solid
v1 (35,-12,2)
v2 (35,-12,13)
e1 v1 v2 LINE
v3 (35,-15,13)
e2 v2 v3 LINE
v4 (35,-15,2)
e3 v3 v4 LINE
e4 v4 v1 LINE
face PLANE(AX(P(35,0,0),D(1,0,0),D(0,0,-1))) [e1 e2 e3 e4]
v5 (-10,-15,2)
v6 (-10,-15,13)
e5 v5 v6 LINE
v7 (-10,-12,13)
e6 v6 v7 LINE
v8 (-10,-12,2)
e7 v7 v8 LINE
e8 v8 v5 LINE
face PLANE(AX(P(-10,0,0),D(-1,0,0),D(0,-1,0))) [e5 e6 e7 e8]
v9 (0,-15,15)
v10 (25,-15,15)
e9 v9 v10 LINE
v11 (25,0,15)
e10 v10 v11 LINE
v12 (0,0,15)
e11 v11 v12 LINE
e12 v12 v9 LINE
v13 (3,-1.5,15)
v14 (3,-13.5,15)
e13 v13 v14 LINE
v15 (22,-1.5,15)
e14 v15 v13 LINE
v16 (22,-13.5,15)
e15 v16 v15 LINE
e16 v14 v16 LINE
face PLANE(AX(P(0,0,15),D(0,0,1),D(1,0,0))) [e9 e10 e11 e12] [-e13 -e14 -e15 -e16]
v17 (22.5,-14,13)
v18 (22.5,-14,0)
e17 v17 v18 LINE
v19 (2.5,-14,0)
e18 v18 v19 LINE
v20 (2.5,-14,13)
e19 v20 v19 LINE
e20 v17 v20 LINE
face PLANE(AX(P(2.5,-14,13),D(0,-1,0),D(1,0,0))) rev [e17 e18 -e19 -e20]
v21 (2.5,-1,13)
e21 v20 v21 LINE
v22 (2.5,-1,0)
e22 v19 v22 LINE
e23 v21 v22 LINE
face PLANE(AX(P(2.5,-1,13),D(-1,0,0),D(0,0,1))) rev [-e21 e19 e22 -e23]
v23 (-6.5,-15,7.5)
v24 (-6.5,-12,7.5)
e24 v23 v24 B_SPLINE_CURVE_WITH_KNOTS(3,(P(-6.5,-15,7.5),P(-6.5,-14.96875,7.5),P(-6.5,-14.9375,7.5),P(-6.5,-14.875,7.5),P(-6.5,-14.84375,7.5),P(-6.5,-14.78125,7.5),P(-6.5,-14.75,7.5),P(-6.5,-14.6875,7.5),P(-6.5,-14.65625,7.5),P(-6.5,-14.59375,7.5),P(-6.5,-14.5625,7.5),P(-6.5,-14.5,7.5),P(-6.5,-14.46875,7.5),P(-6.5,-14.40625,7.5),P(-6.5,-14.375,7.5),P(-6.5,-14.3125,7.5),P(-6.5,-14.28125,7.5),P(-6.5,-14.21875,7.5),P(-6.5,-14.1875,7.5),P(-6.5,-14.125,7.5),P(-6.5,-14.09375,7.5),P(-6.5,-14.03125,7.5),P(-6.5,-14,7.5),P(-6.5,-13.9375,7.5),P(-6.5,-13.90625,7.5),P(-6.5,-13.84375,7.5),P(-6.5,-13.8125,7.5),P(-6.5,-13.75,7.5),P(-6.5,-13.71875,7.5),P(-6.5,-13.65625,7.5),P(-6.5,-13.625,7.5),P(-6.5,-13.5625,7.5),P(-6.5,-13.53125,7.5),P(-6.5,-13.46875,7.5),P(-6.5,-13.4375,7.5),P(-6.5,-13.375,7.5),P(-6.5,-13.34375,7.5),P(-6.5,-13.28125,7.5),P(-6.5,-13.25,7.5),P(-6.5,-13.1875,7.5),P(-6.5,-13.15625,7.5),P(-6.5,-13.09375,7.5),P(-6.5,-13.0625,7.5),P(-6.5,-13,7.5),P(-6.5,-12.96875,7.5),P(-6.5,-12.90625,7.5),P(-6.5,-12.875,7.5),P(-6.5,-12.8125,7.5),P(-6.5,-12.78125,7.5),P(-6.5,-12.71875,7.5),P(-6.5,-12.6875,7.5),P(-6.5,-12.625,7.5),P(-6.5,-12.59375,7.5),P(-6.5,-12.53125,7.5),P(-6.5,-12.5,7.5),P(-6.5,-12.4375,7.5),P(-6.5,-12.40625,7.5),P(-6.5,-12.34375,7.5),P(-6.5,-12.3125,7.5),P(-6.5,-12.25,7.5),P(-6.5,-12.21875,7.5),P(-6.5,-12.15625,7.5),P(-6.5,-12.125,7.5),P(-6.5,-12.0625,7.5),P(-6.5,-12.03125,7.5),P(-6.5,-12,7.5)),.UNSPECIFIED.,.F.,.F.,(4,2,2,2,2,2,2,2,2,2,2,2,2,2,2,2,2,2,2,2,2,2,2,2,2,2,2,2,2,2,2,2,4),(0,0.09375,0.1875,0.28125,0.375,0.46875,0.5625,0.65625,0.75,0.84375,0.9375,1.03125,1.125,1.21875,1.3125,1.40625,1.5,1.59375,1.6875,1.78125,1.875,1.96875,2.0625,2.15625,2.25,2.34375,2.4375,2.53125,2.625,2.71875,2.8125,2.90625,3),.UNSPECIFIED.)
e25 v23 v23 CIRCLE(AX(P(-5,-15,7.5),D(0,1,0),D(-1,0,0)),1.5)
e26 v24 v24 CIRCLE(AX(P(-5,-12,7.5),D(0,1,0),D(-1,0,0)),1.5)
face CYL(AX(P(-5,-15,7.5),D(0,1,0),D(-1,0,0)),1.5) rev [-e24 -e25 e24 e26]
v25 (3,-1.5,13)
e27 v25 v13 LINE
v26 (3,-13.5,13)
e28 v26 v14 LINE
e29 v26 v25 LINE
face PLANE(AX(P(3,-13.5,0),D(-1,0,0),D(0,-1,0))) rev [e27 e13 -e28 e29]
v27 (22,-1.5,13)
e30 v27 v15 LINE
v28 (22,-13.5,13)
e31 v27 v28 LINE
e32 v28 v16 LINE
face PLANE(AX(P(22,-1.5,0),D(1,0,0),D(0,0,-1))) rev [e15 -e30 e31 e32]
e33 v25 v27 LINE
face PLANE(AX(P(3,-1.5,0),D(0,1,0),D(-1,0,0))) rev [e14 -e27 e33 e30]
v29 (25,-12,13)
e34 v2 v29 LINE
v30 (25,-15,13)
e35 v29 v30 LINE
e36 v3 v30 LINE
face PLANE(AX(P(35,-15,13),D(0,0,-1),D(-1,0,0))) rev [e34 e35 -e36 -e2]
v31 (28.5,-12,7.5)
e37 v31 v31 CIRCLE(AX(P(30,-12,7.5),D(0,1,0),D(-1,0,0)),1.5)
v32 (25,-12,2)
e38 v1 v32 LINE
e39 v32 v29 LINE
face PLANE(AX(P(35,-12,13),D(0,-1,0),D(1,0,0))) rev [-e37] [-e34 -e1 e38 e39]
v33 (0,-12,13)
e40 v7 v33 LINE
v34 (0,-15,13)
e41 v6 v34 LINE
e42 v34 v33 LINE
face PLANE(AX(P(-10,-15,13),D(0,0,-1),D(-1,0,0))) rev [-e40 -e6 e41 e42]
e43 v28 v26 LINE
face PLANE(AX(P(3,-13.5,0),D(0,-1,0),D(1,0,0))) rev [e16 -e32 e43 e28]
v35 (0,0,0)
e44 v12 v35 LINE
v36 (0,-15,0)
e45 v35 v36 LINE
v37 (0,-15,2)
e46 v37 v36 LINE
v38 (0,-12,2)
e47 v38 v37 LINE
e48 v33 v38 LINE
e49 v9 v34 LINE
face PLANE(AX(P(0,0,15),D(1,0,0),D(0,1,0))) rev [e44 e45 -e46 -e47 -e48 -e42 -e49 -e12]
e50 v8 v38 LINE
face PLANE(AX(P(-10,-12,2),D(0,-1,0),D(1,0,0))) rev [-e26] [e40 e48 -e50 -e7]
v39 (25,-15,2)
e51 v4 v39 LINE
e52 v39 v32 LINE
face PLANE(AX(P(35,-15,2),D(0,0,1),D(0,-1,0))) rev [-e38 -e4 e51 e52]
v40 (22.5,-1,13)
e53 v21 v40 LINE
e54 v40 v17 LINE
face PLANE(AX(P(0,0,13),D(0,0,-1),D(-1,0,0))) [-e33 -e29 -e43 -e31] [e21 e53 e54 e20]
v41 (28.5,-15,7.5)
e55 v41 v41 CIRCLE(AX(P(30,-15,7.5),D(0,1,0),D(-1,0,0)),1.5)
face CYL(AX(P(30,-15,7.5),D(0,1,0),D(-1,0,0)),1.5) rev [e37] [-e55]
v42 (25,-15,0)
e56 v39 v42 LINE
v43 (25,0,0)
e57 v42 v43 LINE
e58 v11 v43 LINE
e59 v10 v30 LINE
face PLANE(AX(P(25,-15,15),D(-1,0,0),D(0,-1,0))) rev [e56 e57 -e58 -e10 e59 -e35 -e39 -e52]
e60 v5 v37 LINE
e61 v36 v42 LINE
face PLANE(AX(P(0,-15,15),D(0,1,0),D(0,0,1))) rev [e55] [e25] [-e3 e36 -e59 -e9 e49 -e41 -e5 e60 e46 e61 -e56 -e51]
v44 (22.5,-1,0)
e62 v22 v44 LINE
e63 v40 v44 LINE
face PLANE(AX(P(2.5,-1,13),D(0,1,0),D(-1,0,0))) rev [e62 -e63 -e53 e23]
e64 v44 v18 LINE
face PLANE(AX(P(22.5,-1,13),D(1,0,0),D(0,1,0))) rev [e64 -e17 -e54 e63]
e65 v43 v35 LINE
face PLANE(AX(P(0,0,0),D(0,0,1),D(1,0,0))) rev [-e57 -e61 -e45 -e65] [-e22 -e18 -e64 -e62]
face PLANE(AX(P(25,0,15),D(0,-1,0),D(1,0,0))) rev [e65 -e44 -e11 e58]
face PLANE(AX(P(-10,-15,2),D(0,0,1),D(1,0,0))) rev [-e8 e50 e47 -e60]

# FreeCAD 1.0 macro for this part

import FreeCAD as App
import Part
import Sketcher

doc = App.newDocument("Part")
body = doc.addObject("PartDesign::Body", "Body")

sketch1 = body.newObject("Sketcher::SketchObject", "Sketch")
sketch1.AttachmentSupport = (doc.getObject("XY_Plane"), [""])
sketch1.MapMode = "FlatFace"
sketch1.addGeometry(Part.LineSegment(App.Vector(0, 0, 0), App.Vector(0, -15, 0)), False)
sketch1.addGeometry(Part.LineSegment(App.Vector(0, -15, 0), App.Vector(25, -15, 0)), False)
sketch1.addGeometry(Part.LineSegment(App.Vector(25, -15, 0), App.Vector(25, 0, 0)), False)
sketch1.addGeometry(Part.LineSegment(App.Vector(25, 0, 0), App.Vector(0, 0, 0)), False)
sketch1.addConstraint(Sketcher.Constraint("Coincident", 0, 2, 1, 1))
sketch1.addConstraint(Sketcher.Constraint("Coincident", 1, 2, 2, 1))
sketch1.addConstraint(Sketcher.Constraint("Coincident", 2, 2, 3, 1))
sketch1.addConstraint(Sketcher.Constraint("Coincident", 3, 2, 0, 1))
sketch1.addConstraint(Sketcher.Constraint("Vertical", 0))
sketch1.addConstraint(Sketcher.Constraint("Horizontal", 1))
sketch1.addConstraint(Sketcher.Constraint("Vertical", 2))
sketch1.addConstraint(Sketcher.Constraint("Horizontal", 3))
sketch1.addConstraint(Sketcher.Constraint("Coincident", 3, 2, -1, 1))
sketch1.addConstraint(Sketcher.Constraint("DistanceX", 1, 1, 1, 2, 25.0))
sketch1.addConstraint(Sketcher.Constraint("DistanceY", 0, 2, 0, 1, 15.0))
pad1 = body.newObject("PartDesign::Pad", "Pad")
pad1.Profile = sketch1
pad1.Length = 15

sketch2 = body.newObject("Sketcher::SketchObject", "Sketch001")
sketch2.AttachmentSupport = (doc.getObject("XY_Plane"), [""])
sketch2.MapMode = "FlatFace"
sketch2.addGeometry(Part.LineSegment(App.Vector(22, -1, 0), App.Vector(22, -14, 0)), False)
sketch2.addGeometry(Part.LineSegment(App.Vector(22, -14, 0), App.Vector(2, -14, 0)), False)
sketch2.addGeometry(Part.LineSegment(App.Vector(2, -14, 0), App.Vector(2, -1, 0)), False)
sketch2.addGeometry(Part.LineSegment(App.Vector(2, -1, 0), App.Vector(22, -1, 0)), False)
sketch2.addConstraint(Sketcher.Constraint("Coincident", 0, 2, 1, 1))
sketch2.addConstraint(Sketcher.Constraint("Coincident", 1, 2, 2, 1))
sketch2.addConstraint(Sketcher.Constraint("Coincident", 2, 2, 3, 1))
sketch2.addConstraint(Sketcher.Constraint("Coincident", 3, 2, 0, 1))
sketch2.addConstraint(Sketcher.Constraint("Vertical", 0))
sketch2.addConstraint(Sketcher.Constraint("Horizontal", 1))
sketch2.addConstraint(Sketcher.Constraint("Vertical", 2))
sketch2.addConstraint(Sketcher.Constraint("Horizontal", 3))
sketch2.addConstraint(Sketcher.Constraint("DistanceX", 1, 2, 1, 1, 20.0))
sketch2.addConstraint(Sketcher.Constraint("DistanceY", 0, 2, 0, 1, 13.0))
sketch2.addConstraint(Sketcher.Constraint("DistanceY", 0, 2, -1, 1, 14.0))
sketch2.addConstraint(Sketcher.Constraint("DistanceX", -1, 1, 0, 2, 22.5))
pocket1 = body.newObject("PartDesign::Pocket", "Pocket")
pocket1.Profile = sketch2
pocket1.Length = 13
pocket1.Reversed = True

sketch3 = body.newObject("Sketcher::SketchObject", "Sketch002")
sketch3.AttachmentSupport = (doc.getObject("XY_Plane"), [""])
sketch3.MapMode = "FlatFace"
sketch3.AttachmentOffset = App.Placement(App.Vector(0, 0, 15), App.Rotation())
sketch3.addGeometry(Part.LineSegment(App.Vector(3, -2, 0), App.Vector(3, -14, 0)), False)
sketch3.addGeometry(Part.LineSegment(App.Vector(3, -14, 0), App.Vector(22, -14, 0)), False)
sketch3.addGeometry(Part.LineSegment(App.Vector(22, -14, 0), App.Vector(22, -2, 0)), False)
sketch3.addGeometry(Part.LineSegment(App.Vector(22, -2, 0), App.Vector(3, -2, 0)), False)
sketch3.addConstraint(Sketcher.Constraint("Coincident", 0, 2, 1, 1))
sketch3.addConstraint(Sketcher.Constraint("Coincident", 1, 2, 2, 1))
sketch3.addConstraint(Sketcher.Constraint("Coincident", 2, 2, 3, 1))
sketch3.addConstraint(Sketcher.Constraint("Coincident", 3, 2, 0, 1))
sketch3.addConstraint(Sketcher.Constraint("Vertical", 0))
sketch3.addConstraint(Sketcher.Constraint("Horizontal", 1))
sketch3.addConstraint(Sketcher.Constraint("Vertical", 2))
sketch3.addConstraint(Sketcher.Constraint("Horizontal", 3))
sketch3.addConstraint(Sketcher.Constraint("DistanceX", 1, 1, 1, 2, 19.0))
sketch3.addConstraint(Sketcher.Constraint("DistanceY", 0, 2, 0, 1, 12.0))
sketch3.addConstraint(Sketcher.Constraint("DistanceX", -1, 1, 0, 2, 3.0))
sketch3.addConstraint(Sketcher.Constraint("DistanceY", 0, 2, -1, 1, 13.5))
pocket2 = body.newObject("PartDesign::Pocket", "Pocket001")
pocket2.Profile = sketch3
pocket2.Type = "ThroughAll"

sketch4 = body.newObject("Sketcher::SketchObject", "Sketch003")
sketch4.AttachmentSupport = (doc.getObject("YZ_Plane"), [""])
sketch4.MapMode = "FlatFace"
sketch4.addGeometry(Part.LineSegment(App.Vector(-12, 2, 0), App.Vector(-15, 2, 0)), False)
sketch4.addGeometry(Part.LineSegment(App.Vector(-15, 2, 0), App.Vector(-15, 13, 0)), False)
sketch4.addGeometry(Part.LineSegment(App.Vector(-15, 13, 0), App.Vector(-12, 13, 0)), False)
sketch4.addGeometry(Part.LineSegment(App.Vector(-12, 13, 0), App.Vector(-12, 2, 0)), False)
sketch4.addConstraint(Sketcher.Constraint("Coincident", 0, 2, 1, 1))
sketch4.addConstraint(Sketcher.Constraint("Coincident", 1, 2, 2, 1))
sketch4.addConstraint(Sketcher.Constraint("Coincident", 2, 2, 3, 1))
sketch4.addConstraint(Sketcher.Constraint("Coincident", 3, 2, 0, 1))
sketch4.addConstraint(Sketcher.Constraint("Horizontal", 0))
sketch4.addConstraint(Sketcher.Constraint("Vertical", 1))
sketch4.addConstraint(Sketcher.Constraint("Horizontal", 2))
sketch4.addConstraint(Sketcher.Constraint("Vertical", 3))
sketch4.addConstraint(Sketcher.Constraint("DistanceX", 0, 2, 0, 1, 3.0))
sketch4.addConstraint(Sketcher.Constraint("DistanceY", 1, 1, 1, 2, 11.0))
sketch4.addConstraint(Sketcher.Constraint("DistanceX", 0, 2, -1, 1, 15.0))
sketch4.addConstraint(Sketcher.Constraint("DistanceY", -1, 1, 0, 2, 2.0))
pad2 = body.newObject("PartDesign::Pad", "Pad001")
pad2.Profile = sketch4
pad2.Length = 10
pad2.Reversed = True

sketch5 = body.newObject("Sketcher::SketchObject", "Sketch004")
sketch5.AttachmentSupport = (doc.getObject("XZ_Plane"), [""])
sketch5.MapMode = "FlatFace"
sketch5.AttachmentOffset = App.Placement(App.Vector(0, 0, 12), App.Rotation())
sketch5.addGeometry(Part.Circle(App.Vector(-5, 7.5, 0), App.Vector(0, 0, 1), 1.5), False)
sketch5.addConstraint(Sketcher.Constraint("Diameter", 0, 3.0))
sketch5.addConstraint(Sketcher.Constraint("DistanceX", 0, 3, -1, 1, 5.0))
sketch5.addConstraint(Sketcher.Constraint("DistanceY", -1, 1, 0, 3, 7.5))
pocket3 = body.newObject("PartDesign::Pocket", "Pocket002")
pocket3.Profile = sketch5
pocket3.Type = "ThroughAll"
pocket3.Reversed = True

sketch6 = body.newObject("Sketcher::SketchObject", "Sketch005")
sketch6.AttachmentSupport = (doc.getObject("YZ_Plane"), [""])
sketch6.MapMode = "FlatFace"
sketch6.AttachmentOffset = App.Placement(App.Vector(0, 0, 25), App.Rotation())
sketch6.addGeometry(Part.LineSegment(App.Vector(-12, 13, 0), App.Vector(-15, 13, 0)), False)
sketch6.addGeometry(Part.LineSegment(App.Vector(-15, 13, 0), App.Vector(-15, 2, 0)), False)
sketch6.addGeometry(Part.LineSegment(App.Vector(-15, 2, 0), App.Vector(-12, 2, 0)), False)
sketch6.addGeometry(Part.LineSegment(App.Vector(-12, 2, 0), App.Vector(-12, 13, 0)), False)
sketch6.addConstraint(Sketcher.Constraint("Coincident", 0, 2, 1, 1))
sketch6.addConstraint(Sketcher.Constraint("Coincident", 1, 2, 2, 1))
sketch6.addConstraint(Sketcher.Constraint("Coincident", 2, 2, 3, 1))
sketch6.addConstraint(Sketcher.Constraint("Coincident", 3, 2, 0, 1))
sketch6.addConstraint(Sketcher.Constraint("Horizontal", 0))
sketch6.addConstraint(Sketcher.Constraint("Vertical", 1))
sketch6.addConstraint(Sketcher.Constraint("Horizontal", 2))
sketch6.addConstraint(Sketcher.Constraint("Vertical", 3))
sketch6.addConstraint(Sketcher.Constraint("DistanceX", 0, 2, 0, 1, 3.0))
sketch6.addConstraint(Sketcher.Constraint("DistanceY", 1, 2, 1, 1, 11.0))
sketch6.addConstraint(Sketcher.Constraint("DistanceX", 0, 2, -1, 1, 15.0))
sketch6.addConstraint(Sketcher.Constraint("DistanceY", -1, 1, 0, 2, 13.0))
pad3 = body.newObject("PartDesign::Pad", "Pad002")
pad3.Profile = sketch6
pad3.Length = 10

sketch7 = body.newObject("Sketcher::SketchObject", "Sketch006")
sketch7.AttachmentSupport = (doc.getObject("XZ_Plane"), [""])
sketch7.MapMode = "FlatFace"
sketch7.AttachmentOffset = App.Placement(App.Vector(0, 0, 12), App.Rotation())
sketch7.addGeometry(Part.Circle(App.Vector(30, 7.5, 0), App.Vector(0, 0, 1), 1.5), False)
sketch7.addConstraint(Sketcher.Constraint("Diameter", 0, 3.0))
sketch7.addConstraint(Sketcher.Constraint("DistanceX", -1, 1, 0, 3, 30.0))
sketch7.addConstraint(Sketcher.Constraint("DistanceY", -1, 1, 0, 3, 7.5))
pocket4 = body.newObject("PartDesign::Pocket", "Pocket003")
pocket4.Profile = sketch7
pocket4.Type = "ThroughAll"
pocket4.Reversed = True

doc.recompute()
